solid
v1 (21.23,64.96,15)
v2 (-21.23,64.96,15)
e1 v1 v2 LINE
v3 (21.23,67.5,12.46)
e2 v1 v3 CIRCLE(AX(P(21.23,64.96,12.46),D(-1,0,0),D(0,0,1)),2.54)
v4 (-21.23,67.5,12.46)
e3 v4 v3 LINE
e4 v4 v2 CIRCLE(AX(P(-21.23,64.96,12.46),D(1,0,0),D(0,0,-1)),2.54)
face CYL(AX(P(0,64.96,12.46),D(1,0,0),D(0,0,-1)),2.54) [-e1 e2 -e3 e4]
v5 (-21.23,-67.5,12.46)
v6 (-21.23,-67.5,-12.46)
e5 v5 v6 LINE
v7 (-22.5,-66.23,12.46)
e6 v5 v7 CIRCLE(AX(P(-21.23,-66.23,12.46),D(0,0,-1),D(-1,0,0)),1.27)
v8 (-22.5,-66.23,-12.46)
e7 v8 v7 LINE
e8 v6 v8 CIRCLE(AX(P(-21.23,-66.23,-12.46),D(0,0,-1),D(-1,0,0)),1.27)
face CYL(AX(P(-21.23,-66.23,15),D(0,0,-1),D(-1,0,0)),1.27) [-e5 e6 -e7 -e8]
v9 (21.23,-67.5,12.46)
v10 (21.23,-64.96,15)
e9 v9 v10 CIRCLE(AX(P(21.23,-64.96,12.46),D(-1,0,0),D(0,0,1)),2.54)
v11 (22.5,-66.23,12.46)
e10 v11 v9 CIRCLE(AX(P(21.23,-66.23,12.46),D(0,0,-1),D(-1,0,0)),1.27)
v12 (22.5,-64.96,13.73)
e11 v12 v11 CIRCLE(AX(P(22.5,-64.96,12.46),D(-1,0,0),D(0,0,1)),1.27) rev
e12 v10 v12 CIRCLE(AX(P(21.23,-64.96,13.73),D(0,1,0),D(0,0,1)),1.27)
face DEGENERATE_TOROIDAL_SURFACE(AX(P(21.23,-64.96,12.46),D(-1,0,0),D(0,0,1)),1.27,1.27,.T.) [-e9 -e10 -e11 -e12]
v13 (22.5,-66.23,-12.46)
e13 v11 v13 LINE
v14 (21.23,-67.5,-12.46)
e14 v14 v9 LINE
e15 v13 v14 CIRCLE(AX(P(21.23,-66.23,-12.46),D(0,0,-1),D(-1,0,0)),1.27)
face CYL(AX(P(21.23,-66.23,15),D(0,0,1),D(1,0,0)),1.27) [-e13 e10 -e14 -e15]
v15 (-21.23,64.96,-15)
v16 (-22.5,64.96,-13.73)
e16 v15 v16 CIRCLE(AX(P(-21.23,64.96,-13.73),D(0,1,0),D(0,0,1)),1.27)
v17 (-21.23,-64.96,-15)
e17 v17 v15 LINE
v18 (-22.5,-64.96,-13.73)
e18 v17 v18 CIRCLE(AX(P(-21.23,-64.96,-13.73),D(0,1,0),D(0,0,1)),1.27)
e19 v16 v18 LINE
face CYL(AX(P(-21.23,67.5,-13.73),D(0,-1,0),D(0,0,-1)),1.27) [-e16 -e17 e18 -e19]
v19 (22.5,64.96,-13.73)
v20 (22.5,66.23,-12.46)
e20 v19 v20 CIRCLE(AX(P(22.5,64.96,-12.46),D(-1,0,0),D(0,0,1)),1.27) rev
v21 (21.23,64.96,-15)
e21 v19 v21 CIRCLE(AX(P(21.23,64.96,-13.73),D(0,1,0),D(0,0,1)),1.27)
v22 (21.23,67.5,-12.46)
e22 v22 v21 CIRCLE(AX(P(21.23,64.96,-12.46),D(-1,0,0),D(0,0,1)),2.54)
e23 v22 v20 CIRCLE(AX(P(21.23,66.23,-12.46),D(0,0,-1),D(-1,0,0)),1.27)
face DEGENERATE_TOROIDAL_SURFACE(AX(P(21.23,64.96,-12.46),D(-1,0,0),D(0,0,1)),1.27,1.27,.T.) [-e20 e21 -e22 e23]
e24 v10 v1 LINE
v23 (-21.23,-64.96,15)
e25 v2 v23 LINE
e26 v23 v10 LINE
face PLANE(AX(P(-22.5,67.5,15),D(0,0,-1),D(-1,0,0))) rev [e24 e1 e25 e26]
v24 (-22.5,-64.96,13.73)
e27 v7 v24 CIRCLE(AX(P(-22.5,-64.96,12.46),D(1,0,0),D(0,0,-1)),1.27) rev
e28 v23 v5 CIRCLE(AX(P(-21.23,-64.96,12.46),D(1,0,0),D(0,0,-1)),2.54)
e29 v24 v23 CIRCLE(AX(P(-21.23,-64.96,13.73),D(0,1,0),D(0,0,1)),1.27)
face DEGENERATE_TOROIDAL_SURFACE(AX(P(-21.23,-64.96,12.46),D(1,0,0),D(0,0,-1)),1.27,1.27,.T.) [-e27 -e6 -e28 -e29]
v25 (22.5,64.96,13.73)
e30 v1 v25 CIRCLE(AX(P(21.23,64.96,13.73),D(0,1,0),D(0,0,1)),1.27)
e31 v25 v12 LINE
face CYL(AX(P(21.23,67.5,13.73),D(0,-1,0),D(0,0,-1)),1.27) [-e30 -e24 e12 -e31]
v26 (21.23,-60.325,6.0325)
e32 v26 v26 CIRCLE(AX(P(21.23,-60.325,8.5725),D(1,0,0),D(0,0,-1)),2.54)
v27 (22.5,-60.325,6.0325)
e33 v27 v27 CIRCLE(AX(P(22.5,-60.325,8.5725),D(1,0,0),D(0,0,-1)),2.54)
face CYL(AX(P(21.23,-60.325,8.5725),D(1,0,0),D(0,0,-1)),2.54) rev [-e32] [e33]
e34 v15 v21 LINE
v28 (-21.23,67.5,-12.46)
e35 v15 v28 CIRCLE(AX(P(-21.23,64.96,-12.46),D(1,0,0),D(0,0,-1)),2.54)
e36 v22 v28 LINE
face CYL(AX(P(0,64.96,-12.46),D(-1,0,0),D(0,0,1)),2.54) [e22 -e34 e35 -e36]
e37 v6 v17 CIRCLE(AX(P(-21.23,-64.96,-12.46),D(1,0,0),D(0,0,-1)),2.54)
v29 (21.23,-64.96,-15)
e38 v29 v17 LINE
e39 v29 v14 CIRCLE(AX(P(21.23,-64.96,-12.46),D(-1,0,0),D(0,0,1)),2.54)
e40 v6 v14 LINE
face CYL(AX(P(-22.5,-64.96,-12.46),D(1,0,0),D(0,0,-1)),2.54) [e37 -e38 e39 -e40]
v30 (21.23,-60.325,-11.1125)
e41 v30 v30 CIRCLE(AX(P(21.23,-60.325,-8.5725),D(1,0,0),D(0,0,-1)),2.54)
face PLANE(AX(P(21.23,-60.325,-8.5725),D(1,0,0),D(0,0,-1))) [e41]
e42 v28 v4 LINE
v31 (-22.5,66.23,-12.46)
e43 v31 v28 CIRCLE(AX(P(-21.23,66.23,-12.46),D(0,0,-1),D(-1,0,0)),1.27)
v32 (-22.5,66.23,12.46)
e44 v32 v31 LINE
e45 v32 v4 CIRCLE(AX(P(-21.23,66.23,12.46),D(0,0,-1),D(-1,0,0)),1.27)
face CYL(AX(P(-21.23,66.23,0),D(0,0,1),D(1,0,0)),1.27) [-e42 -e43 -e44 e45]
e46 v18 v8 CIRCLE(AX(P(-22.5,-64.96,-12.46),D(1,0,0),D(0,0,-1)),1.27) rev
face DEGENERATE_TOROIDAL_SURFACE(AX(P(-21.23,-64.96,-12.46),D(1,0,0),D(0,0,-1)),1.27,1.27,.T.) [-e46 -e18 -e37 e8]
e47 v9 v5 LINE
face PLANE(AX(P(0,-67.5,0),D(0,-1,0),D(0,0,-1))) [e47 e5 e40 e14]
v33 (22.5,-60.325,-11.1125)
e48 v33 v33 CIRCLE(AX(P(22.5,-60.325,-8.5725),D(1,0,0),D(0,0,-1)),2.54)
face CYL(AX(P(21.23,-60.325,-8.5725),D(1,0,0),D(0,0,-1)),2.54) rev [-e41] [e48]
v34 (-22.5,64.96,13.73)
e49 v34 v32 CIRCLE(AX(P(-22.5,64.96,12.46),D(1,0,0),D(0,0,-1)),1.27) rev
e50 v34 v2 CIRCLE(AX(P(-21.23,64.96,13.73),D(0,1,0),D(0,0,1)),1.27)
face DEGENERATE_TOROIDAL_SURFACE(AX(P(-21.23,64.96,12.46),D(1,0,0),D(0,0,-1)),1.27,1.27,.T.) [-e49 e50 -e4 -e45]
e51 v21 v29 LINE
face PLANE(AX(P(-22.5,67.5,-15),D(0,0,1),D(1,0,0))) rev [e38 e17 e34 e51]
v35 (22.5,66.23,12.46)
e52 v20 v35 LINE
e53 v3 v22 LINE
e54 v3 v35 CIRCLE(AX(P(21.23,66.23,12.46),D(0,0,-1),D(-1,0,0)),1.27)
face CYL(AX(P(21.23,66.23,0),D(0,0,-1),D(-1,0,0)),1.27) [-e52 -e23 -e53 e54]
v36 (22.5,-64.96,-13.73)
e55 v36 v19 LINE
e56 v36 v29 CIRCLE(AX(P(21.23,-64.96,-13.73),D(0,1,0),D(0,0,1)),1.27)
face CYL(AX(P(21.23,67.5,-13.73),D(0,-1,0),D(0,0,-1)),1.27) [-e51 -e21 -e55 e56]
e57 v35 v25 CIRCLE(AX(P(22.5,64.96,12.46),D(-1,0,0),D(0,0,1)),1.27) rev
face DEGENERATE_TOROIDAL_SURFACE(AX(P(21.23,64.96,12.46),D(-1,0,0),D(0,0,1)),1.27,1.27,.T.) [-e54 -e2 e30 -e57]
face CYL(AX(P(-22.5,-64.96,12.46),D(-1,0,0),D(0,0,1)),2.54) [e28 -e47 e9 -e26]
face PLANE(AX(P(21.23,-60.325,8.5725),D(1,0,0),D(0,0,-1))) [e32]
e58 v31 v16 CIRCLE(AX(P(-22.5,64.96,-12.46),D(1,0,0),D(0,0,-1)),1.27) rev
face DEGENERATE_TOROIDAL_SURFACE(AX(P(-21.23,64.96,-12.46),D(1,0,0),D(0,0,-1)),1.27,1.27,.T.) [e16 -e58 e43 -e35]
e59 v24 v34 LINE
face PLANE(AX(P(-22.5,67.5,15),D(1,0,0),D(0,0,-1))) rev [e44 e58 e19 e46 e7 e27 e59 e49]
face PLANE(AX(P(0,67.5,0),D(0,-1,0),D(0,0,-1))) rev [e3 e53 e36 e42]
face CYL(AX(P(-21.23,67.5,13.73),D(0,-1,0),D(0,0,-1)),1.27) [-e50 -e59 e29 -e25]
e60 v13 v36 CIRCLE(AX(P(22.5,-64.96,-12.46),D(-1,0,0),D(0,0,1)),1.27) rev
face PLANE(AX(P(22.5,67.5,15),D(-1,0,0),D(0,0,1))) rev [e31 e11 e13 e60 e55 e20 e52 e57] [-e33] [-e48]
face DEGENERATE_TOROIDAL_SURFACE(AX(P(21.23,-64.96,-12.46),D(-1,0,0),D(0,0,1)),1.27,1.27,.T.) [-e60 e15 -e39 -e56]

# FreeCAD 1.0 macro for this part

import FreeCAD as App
import Part
import Sketcher

V = App.Vector
Q = App.Units.Quantity


def edges_at(feature, points):
    """Names of the edges that pass closest to the given points."""
    edges = feature.Shape.Edges
    near = lambda p: min(range(len(edges)), key=lambda i: edges[i].distToShape(Part.Vertex(*p))[0])
    return sorted({f"Edge{near(p) + 1}" for p in points})

doc = App.newDocument("Part")
body = doc.addObject("PartDesign::Body", "Body")

# Sketch on XZ plane
sketch1 = body.newObject("Sketcher::SketchObject", "Sketch")
sketch1.AttachmentSupport = (doc.getObject("XZ_Plane"), [""])
sketch1.MapMode = "FlatFace"
sketch1.addGeometry([
    Part.LineSegment(V(-22.5, -15, 0), V(-22.5, 15, 0)),
    Part.LineSegment(V(-22.5, 15, 0), V(22.5, 15, 0)),
    Part.LineSegment(V(22.5, 15, 0), V(22.5, -15, 0)),
    Part.LineSegment(V(22.5, -15, 0), V(-22.5, -15, 0)),
], False)
sketch1.addConstraint([
    Sketcher.Constraint("Coincident", 0, 2, 1, 1),
    Sketcher.Constraint("Coincident", 1, 2, 2, 1),
    Sketcher.Constraint("Coincident", 2, 2, 3, 1),
    Sketcher.Constraint("Coincident", 3, 2, 0, 1),
    Sketcher.Constraint("Vertical", 0),
    Sketcher.Constraint("Horizontal", 1),
    Sketcher.Constraint("Vertical", 2),
    Sketcher.Constraint("Horizontal", 3),
    Sketcher.Constraint("Symmetric", 0, 2, 2, 2, -1, 1),
    Sketcher.Constraint("DistanceX", 1, 1, 1, 2, Q("45 mm")),
    Sketcher.Constraint("DistanceY", 0, 1, 0, 2, Q("30 mm")),
])
pad1 = body.newObject("PartDesign::Pad", "Pad")
pad1.Profile = sketch1
pad1.Length = 135
pad1.Midplane = True
doc.recompute()

fillet = body.newObject("PartDesign::Fillet", "Fillet")
fillet.Base = (pad1, edges_at(pad1, [
    (0, 67.5, 15),
    (0, -67.5, 15),
    (0, -67.5, -15),
    (0, 67.5, -15),
]))
fillet.Radius = 2.54
doc.recompute()

fillet2 = body.newObject("PartDesign::Fillet", "Fillet001")
fillet2.Base = (fillet, edges_at(fillet, [
    (22.5, 0, 15),
    (-22.5, 0, 15),
    (22.5, -67.5, 0),
    (22.5, 0, -15),
    (22.5, 67.5, 0),
    (22.5, 66.756, -14.256),
    (22.5, 66.756, 14.256),
    (22.5, -66.756, -14.256),
    (22.5, -66.756, 14.256),
    (-22.5, -67.5, 0),
    (-22.5, 67.5, 0),
    (-22.5, 0, -15),
    (-22.5, 66.756, -14.256),
    (-22.5, 66.756, 14.256),
    (-22.5, -66.756, -14.256),
    (-22.5, -66.756, 14.256),
]))
fillet2.Radius = 1.27

# Sketch on YZ plane
sketch2 = body.newObject("Sketcher::SketchObject", "Sketch001")
sketch2.AttachmentSupport = (doc.getObject("YZ_Plane"), [""])
sketch2.MapMode = "FlatFace"
sketch2.AttachmentOffset = App.Placement(V(0, 0, 22.5), App.Rotation())
sketch2.addGeometry([
    Part.Circle(V(-60.325, -8.5725, 0), V(0, 0, 1), 2.54),
    Part.Circle(V(-60.325, 8.5725, 0), V(0, 0, 1), 2.54),
], False)
sketch2.addConstraint([
    Sketcher.Constraint("Equal", 0, 1),
    Sketcher.Constraint("Symmetric", 0, 3, 1, 3, -1),
    Sketcher.Constraint("Diameter", 0, Q("5.08 mm")),
    Sketcher.Constraint("DistanceX", 0, 3, -1, 1, Q("60.325 mm")),
    Sketcher.Constraint("DistanceY", 0, 3, 1, 3, Q("17.145 mm")),
])
pocket1 = body.newObject("PartDesign::Pocket", "Pocket")
pocket1.Profile = sketch2
pocket1.Length = 1.27

doc.recompute()
